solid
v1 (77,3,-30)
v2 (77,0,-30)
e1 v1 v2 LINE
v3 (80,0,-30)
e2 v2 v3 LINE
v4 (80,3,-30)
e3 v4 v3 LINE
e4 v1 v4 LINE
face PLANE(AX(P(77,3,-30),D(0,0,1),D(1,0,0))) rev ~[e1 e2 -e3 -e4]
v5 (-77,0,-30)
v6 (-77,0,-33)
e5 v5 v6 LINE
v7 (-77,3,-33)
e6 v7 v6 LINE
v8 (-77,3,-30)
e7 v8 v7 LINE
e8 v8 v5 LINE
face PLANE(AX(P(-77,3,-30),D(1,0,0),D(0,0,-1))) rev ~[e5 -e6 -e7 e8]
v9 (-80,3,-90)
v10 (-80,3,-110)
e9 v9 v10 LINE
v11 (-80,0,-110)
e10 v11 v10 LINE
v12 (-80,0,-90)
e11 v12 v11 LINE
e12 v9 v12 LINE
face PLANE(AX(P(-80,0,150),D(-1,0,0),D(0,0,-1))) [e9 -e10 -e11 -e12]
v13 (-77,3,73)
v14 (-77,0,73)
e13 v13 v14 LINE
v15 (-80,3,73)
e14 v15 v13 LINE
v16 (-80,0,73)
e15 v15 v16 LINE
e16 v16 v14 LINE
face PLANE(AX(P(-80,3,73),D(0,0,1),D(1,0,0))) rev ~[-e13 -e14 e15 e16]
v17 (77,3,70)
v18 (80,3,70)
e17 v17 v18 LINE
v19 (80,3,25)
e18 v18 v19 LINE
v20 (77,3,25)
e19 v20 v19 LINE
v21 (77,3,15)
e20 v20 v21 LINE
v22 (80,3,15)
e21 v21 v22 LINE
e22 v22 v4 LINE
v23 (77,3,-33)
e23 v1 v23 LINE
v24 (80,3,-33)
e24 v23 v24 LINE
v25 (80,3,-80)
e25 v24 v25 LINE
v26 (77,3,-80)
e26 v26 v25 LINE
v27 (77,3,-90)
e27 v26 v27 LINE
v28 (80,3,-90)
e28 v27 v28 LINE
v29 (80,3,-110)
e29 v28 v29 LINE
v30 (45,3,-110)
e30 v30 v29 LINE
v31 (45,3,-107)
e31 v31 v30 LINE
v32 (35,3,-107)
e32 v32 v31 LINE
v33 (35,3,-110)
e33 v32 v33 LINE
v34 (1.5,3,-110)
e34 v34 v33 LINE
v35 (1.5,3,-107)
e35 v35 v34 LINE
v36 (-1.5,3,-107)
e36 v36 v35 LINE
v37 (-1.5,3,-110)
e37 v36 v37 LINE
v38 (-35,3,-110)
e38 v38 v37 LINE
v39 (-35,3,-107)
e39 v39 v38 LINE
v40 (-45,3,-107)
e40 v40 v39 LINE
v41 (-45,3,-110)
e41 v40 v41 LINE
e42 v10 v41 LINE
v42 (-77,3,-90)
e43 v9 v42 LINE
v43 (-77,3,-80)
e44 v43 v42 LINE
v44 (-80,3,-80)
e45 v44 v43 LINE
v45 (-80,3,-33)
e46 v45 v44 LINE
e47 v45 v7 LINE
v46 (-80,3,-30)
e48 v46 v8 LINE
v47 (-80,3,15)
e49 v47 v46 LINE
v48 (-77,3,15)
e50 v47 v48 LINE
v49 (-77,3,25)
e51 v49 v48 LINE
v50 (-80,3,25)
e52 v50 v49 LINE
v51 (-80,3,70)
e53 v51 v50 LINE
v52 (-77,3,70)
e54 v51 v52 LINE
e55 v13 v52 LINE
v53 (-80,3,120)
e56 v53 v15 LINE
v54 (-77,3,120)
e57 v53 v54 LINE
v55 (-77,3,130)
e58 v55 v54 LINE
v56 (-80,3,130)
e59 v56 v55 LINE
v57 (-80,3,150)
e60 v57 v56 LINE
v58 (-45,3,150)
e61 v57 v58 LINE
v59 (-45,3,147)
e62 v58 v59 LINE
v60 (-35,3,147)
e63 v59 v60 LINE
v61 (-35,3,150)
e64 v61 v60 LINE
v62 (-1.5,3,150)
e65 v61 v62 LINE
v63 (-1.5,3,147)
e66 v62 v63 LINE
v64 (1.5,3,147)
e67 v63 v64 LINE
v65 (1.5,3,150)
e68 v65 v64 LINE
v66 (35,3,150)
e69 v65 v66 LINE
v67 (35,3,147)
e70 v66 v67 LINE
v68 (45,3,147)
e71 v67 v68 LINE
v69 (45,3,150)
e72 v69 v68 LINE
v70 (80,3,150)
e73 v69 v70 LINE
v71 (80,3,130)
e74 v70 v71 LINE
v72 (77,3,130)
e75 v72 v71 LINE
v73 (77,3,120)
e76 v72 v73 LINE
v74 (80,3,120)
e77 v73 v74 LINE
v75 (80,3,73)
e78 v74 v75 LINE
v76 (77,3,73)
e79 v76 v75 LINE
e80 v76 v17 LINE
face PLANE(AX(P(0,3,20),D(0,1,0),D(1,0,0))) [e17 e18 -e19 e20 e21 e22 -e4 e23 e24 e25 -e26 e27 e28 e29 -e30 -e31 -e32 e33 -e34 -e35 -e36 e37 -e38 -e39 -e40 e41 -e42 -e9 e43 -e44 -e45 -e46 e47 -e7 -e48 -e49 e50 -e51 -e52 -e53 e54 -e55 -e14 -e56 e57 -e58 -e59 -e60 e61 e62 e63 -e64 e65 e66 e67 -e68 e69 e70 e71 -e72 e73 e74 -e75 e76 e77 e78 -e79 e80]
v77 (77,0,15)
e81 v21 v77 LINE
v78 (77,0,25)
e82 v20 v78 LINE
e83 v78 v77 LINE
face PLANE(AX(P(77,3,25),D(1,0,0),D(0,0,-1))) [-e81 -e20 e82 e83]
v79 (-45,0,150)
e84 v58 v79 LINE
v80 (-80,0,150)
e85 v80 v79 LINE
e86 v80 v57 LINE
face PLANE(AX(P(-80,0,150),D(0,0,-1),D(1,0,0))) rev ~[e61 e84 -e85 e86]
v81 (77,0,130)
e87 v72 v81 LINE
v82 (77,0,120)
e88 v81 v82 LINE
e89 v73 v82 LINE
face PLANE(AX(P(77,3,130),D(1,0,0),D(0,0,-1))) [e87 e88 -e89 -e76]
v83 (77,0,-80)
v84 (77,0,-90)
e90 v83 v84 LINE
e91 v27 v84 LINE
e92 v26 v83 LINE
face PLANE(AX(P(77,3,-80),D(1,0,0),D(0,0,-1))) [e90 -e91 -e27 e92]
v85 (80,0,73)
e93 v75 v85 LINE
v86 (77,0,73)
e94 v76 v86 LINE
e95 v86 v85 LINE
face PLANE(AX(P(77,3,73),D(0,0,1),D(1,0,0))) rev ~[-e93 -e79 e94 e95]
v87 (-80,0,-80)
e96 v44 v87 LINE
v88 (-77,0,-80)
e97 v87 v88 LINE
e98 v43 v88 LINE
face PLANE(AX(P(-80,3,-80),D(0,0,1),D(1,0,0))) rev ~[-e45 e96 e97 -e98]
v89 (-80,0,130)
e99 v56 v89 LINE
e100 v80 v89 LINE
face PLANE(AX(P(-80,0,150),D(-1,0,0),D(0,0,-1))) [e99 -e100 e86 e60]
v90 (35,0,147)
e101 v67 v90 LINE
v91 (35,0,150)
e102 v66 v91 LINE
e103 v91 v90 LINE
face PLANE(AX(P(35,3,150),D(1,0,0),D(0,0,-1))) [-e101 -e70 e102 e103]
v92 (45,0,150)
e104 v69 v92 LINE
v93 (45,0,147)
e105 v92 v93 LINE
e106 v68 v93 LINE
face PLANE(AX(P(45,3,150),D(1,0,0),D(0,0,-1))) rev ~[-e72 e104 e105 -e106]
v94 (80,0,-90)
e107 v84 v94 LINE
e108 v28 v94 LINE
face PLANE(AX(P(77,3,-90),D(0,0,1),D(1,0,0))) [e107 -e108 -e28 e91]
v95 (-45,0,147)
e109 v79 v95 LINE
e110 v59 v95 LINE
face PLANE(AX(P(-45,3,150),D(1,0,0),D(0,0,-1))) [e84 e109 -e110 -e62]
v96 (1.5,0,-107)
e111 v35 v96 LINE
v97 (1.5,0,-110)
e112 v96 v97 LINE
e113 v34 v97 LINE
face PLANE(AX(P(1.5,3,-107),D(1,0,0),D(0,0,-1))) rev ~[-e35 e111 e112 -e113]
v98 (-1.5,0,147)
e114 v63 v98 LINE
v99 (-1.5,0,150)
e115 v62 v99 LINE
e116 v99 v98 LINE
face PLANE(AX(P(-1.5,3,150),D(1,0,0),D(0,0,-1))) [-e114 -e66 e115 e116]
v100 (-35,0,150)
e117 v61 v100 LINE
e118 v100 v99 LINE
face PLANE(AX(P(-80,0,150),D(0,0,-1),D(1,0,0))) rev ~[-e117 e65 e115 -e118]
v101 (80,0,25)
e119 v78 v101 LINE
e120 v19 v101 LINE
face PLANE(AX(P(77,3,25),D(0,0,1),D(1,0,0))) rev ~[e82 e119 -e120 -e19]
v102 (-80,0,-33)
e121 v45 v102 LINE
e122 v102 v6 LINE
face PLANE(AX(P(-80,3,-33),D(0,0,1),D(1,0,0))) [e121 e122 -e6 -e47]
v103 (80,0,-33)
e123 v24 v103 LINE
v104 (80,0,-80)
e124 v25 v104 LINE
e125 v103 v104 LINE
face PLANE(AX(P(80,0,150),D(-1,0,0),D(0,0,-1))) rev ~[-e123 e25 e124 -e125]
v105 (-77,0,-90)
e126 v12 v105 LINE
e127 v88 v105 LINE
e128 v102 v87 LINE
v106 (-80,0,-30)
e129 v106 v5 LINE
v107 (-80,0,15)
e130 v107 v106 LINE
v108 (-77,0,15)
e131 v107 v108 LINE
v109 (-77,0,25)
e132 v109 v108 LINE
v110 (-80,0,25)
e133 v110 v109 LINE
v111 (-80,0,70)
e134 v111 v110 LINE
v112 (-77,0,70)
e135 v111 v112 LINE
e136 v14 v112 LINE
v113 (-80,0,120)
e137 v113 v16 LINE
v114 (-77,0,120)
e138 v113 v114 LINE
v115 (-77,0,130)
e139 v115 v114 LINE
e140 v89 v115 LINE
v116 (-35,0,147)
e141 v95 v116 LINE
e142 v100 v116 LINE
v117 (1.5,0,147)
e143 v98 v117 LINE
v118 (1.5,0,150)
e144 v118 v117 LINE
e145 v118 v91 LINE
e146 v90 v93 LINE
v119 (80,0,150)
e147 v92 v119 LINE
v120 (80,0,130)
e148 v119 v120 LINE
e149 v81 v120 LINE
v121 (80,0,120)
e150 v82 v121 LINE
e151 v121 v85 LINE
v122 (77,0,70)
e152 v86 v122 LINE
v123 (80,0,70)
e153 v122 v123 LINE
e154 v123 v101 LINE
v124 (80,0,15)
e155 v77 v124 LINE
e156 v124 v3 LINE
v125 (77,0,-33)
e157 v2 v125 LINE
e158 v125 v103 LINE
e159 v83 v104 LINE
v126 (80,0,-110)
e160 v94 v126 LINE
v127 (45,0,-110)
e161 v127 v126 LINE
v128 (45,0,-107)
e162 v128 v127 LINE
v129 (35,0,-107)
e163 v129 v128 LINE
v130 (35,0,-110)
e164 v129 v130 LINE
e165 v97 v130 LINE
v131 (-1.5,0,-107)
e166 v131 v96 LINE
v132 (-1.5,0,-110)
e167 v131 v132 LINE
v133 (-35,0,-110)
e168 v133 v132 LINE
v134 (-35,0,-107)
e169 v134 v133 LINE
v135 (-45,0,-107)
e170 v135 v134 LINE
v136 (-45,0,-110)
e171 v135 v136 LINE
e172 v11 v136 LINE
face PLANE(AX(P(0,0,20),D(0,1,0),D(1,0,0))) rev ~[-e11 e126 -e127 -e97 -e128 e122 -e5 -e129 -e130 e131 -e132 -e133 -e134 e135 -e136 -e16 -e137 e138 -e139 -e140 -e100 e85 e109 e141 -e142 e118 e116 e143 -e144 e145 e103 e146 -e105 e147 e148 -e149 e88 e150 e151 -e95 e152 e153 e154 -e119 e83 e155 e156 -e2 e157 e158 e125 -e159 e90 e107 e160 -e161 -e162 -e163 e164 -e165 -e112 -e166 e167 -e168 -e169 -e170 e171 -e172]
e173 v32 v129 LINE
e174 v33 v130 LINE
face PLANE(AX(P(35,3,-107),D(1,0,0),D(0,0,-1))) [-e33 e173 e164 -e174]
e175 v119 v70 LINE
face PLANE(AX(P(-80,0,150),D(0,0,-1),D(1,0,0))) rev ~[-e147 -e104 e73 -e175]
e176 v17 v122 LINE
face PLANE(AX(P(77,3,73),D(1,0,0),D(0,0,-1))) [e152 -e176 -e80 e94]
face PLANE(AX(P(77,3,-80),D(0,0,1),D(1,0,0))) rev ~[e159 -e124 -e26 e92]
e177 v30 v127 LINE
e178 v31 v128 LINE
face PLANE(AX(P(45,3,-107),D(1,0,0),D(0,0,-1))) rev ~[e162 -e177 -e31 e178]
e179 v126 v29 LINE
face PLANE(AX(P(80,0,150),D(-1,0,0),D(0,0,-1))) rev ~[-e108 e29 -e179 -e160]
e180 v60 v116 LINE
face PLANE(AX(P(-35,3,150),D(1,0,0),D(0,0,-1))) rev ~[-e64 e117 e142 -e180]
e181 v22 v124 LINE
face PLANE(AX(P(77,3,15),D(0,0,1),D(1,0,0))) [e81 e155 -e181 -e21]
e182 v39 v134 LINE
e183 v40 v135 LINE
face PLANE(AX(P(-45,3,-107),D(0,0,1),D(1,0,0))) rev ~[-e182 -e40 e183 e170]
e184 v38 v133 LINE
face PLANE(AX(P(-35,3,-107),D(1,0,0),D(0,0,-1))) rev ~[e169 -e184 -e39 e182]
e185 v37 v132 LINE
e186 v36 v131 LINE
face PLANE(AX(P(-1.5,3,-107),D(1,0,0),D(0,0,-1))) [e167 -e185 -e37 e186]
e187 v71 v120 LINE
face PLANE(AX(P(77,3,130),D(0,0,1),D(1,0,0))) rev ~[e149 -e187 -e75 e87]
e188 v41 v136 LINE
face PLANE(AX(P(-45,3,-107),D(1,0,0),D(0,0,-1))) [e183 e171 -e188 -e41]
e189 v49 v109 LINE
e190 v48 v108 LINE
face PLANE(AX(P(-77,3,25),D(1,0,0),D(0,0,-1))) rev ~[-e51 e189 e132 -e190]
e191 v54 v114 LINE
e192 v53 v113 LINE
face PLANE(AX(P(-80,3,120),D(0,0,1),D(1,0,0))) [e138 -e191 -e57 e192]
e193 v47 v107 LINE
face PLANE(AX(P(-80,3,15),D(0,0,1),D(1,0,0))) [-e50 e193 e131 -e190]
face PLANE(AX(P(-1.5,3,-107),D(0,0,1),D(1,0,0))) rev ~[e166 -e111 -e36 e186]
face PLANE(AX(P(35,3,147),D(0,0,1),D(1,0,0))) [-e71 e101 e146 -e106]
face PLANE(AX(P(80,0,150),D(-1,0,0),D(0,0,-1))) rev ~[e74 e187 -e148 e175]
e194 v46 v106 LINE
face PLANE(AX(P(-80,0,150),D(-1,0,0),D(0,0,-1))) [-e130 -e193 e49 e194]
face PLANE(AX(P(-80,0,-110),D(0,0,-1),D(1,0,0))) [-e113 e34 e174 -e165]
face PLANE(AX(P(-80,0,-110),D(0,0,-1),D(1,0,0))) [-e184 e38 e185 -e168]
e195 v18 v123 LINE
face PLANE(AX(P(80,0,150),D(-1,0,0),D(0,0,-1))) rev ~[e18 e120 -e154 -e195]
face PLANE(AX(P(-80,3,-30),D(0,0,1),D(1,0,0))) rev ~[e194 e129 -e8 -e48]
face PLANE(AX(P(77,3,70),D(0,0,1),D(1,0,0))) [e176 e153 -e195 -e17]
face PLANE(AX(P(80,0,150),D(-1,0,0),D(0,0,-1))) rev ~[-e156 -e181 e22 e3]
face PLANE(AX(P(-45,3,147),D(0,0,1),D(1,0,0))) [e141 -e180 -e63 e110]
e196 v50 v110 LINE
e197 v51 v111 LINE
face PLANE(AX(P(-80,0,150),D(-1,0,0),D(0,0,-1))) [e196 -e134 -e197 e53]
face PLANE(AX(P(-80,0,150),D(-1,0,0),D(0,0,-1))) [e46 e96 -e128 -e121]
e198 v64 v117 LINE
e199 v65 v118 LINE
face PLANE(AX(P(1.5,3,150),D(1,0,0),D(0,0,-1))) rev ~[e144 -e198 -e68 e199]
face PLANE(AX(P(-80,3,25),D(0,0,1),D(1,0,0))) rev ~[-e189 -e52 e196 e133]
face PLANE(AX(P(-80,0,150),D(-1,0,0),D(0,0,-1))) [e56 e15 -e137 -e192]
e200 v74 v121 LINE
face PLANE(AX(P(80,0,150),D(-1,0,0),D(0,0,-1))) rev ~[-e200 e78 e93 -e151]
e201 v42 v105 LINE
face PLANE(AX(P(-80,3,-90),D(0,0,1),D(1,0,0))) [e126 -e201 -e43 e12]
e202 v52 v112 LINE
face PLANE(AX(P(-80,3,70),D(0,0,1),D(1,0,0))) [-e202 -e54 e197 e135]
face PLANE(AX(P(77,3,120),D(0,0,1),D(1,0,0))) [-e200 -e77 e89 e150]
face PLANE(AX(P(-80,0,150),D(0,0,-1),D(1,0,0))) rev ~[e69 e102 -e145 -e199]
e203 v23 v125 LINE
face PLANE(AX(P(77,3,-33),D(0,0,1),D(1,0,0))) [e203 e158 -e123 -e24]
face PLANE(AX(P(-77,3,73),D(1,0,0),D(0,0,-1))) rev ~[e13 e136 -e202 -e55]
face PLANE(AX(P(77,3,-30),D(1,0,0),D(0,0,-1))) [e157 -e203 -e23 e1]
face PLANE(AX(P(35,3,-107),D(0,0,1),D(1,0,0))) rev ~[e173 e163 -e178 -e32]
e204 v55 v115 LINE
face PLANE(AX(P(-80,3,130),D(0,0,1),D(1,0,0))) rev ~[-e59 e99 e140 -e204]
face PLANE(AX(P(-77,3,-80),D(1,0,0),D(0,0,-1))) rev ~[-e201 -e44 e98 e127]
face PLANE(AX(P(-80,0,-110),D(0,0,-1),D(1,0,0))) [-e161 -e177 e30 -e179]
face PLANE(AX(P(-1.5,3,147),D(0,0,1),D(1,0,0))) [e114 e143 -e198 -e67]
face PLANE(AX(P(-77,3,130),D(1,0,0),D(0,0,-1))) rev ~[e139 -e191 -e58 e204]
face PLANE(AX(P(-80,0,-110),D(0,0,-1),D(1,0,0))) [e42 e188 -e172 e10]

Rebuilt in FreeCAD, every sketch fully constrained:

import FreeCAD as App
import Part
import Sketcher


def add_polygon(sketch, points):
    """Adds a closed chain of lines whose ends are joined by coincident constraints."""
    first, n = sketch.GeometryCount, len(points)
    for a, b in zip(points, points[1:] + points[:1]):
        sketch.addGeometry(Part.LineSegment(App.Vector(*a, 0), App.Vector(*b, 0)), False)
    for i in range(n):
        sketch.addConstraint(Sketcher.Constraint("Coincident", first + i, 2, first + (i + 1) % n, 1))

doc = App.newDocument("Part")
body = doc.addObject("PartDesign::Body", "Body")

# Sketch on XZ plane
sketch1 = body.newObject("Sketcher::SketchObject", "Sketch")
sketch1.AttachmentSupport = (doc.getObject("XZ_Plane"), [""])
sketch1.MapMode = "FlatFace"
add_polygon(sketch1, [(-80, -110), (-80, 150), (80, 150), (80, -110)])  # lines 0-3
sketch1.addConstraint(Sketcher.Constraint("Vertical", 0))
sketch1.addConstraint(Sketcher.Constraint("Horizontal", 1))
sketch1.addConstraint(Sketcher.Constraint("Vertical", 2))
sketch1.addConstraint(Sketcher.Constraint("Horizontal", 3))
sketch1.addConstraint(Sketcher.Constraint("DistanceX", 1, 1, 1, 2, 160.0))
sketch1.addConstraint(Sketcher.Constraint("DistanceY", 0, 1, 0, 2, 260.0))
sketch1.addConstraint(Sketcher.Constraint("DistanceX", 0, 2, -1, 1, 80.0))
sketch1.addConstraint(Sketcher.Constraint("DistanceY", -1, 1, 0, 2, 150.0))
pad1 = body.newObject("PartDesign::Pad", "Pad")
pad1.Profile = sketch1
pad1.Length = 3
pad1.Reversed = True

# Sketch on XZ plane
sketch2 = body.newObject("Sketcher::SketchObject", "Sketch001")
sketch2.AttachmentSupport = (doc.getObject("XZ_Plane"), [""])
sketch2.MapMode = "FlatFace"
sketch2.AttachmentOffset = App.Placement(App.Vector(0, 0, -3), App.Rotation())
add_polygon(sketch2, [(-1.5, -110), (-1.5, -107), (1.5, -107), (1.5, -110)])  # lines 0-3
add_polygon(sketch2, [(35, -110), (35, -107), (45, -107), (45, -110)])  # lines 4-7
add_polygon(sketch2, [(-45, -110), (-45, -107), (-35, -107), (-35, -110)])  # lines 8-11
add_polygon(sketch2, [(35, 147), (35, 150), (45, 150), (45, 147)])  # lines 12-15
add_polygon(sketch2, [(-45, 147), (-45, 150), (-35, 150), (-35, 147)])  # lines 16-19
add_polygon(sketch2, [(-1.5, 147), (-1.5, 150), (1.5, 150), (1.5, 147)])  # lines 20-23
add_polygon(sketch2, [(-80, 120), (-80, 130), (-77, 130), (-77, 120)])  # lines 24-27
add_polygon(sketch2, [(-80, 15), (-80, 25), (-77, 25), (-77, 15)])  # lines 28-31
add_polygon(sketch2, [(-80, -90), (-80, -80), (-77, -80), (-77, -90)])  # lines 32-35
add_polygon(sketch2, [(-80, 70), (-80, 73), (-77, 73), (-77, 70)])  # lines 36-39
add_polygon(sketch2, [(-80, -33), (-80, -30), (-77, -30), (-77, -33)])  # lines 40-43
add_polygon(sketch2, [(77, 120), (77, 130), (80, 130), (80, 120)])  # lines 44-47
add_polygon(sketch2, [(77, 70), (77, 73), (80, 73), (80, 70)])  # lines 48-51
add_polygon(sketch2, [(77, 15), (77, 25), (80, 25), (80, 15)])  # lines 52-55
add_polygon(sketch2, [(77, -33), (77, -30), (80, -30), (80, -33)])  # lines 56-59
add_polygon(sketch2, [(77, -90), (77, -80), (80, -80), (80, -90)])  # lines 60-63
sketch2.addConstraint(Sketcher.Constraint("Vertical", 0))
sketch2.addConstraint(Sketcher.Constraint("Horizontal", 1))
sketch2.addConstraint(Sketcher.Constraint("Vertical", 2))
sketch2.addConstraint(Sketcher.Constraint("Horizontal", 3))
sketch2.addConstraint(Sketcher.Constraint("Vertical", 4))
sketch2.addConstraint(Sketcher.Constraint("Horizontal", 5))
sketch2.addConstraint(Sketcher.Constraint("Vertical", 6))
sketch2.addConstraint(Sketcher.Constraint("Horizontal", 7))
sketch2.addConstraint(Sketcher.Constraint("Vertical", 8))
sketch2.addConstraint(Sketcher.Constraint("Horizontal", 9))
sketch2.addConstraint(Sketcher.Constraint("Vertical", 10))
sketch2.addConstraint(Sketcher.Constraint("Horizontal", 11))
sketch2.addConstraint(Sketcher.Constraint("Vertical", 12))
sketch2.addConstraint(Sketcher.Constraint("Horizontal", 13))
sketch2.addConstraint(Sketcher.Constraint("Vertical", 14))
sketch2.addConstraint(Sketcher.Constraint("Horizontal", 15))
sketch2.addConstraint(Sketcher.Constraint("Vertical", 16))
sketch2.addConstraint(Sketcher.Constraint("Horizontal", 17))
sketch2.addConstraint(Sketcher.Constraint("Vertical", 18))
sketch2.addConstraint(Sketcher.Constraint("Horizontal", 19))
sketch2.addConstraint(Sketcher.Constraint("Vertical", 20))
sketch2.addConstraint(Sketcher.Constraint("Horizontal", 21))
sketch2.addConstraint(Sketcher.Constraint("Vertical", 22))
sketch2.addConstraint(Sketcher.Constraint("Horizontal", 23))
sketch2.addConstraint(Sketcher.Constraint("Vertical", 24))
sketch2.addConstraint(Sketcher.Constraint("Horizontal", 25))
sketch2.addConstraint(Sketcher.Constraint("Vertical", 26))
sketch2.addConstraint(Sketcher.Constraint("Horizontal", 27))
sketch2.addConstraint(Sketcher.Constraint("Vertical", 28))
sketch2.addConstraint(Sketcher.Constraint("Horizontal", 29))
sketch2.addConstraint(Sketcher.Constraint("Vertical", 30))
sketch2.addConstraint(Sketcher.Constraint("Horizontal", 31))
sketch2.addConstraint(Sketcher.Constraint("Vertical", 32))
sketch2.addConstraint(Sketcher.Constraint("Horizontal", 33))
sketch2.addConstraint(Sketcher.Constraint("Vertical", 34))
sketch2.addConstraint(Sketcher.Constraint("Horizontal", 35))
sketch2.addConstraint(Sketcher.Constraint("Vertical", 36))
sketch2.addConstraint(Sketcher.Constraint("Horizontal", 37))
sketch2.addConstraint(Sketcher.Constraint("Vertical", 38))
sketch2.addConstraint(Sketcher.Constraint("Horizontal", 39))
sketch2.addConstraint(Sketcher.Constraint("Vertical", 40))
sketch2.addConstraint(Sketcher.Constraint("Horizontal", 41))
sketch2.addConstraint(Sketcher.Constraint("Vertical", 42))
sketch2.addConstraint(Sketcher.Constraint("Horizontal", 43))
sketch2.addConstraint(Sketcher.Constraint("Vertical", 44))
sketch2.addConstraint(Sketcher.Constraint("Horizontal", 45))
sketch2.addConstraint(Sketcher.Constraint("Vertical", 46))
sketch2.addConstraint(Sketcher.Constraint("Horizontal", 47))
sketch2.addConstraint(Sketcher.Constraint("Vertical", 48))
sketch2.addConstraint(Sketcher.Constraint("Horizontal", 49))
sketch2.addConstraint(Sketcher.Constraint("Vertical", 50))
sketch2.addConstraint(Sketcher.Constraint("Horizontal", 51))
sketch2.addConstraint(Sketcher.Constraint("Vertical", 52))
sketch2.addConstraint(Sketcher.Constraint("Horizontal", 53))
sketch2.addConstraint(Sketcher.Constraint("Vertical", 54))
sketch2.addConstraint(Sketcher.Constraint("Horizontal", 55))
sketch2.addConstraint(Sketcher.Constraint("Vertical", 56))
sketch2.addConstraint(Sketcher.Constraint("Horizontal", 57))
sketch2.addConstraint(Sketcher.Constraint("Vertical", 58))
sketch2.addConstraint(Sketcher.Constraint("Horizontal", 59))
sketch2.addConstraint(Sketcher.Constraint("Vertical", 60))
sketch2.addConstraint(Sketcher.Constraint("Horizontal", 61))
sketch2.addConstraint(Sketcher.Constraint("Vertical", 62))
sketch2.addConstraint(Sketcher.Constraint("Horizontal", 63))
sketch2.addConstraint(Sketcher.Constraint("Symmetric", 5, 2, 8, 2, -2))
sketch2.addConstraint(Sketcher.Constraint("Symmetric", 7, 2, 10, 2, -2))
sketch2.addConstraint(Sketcher.Constraint("Symmetric", 13, 2, 16, 2, -2))
sketch2.addConstraint(Sketcher.Constraint("Symmetric", 15, 2, 18, 2, -2))
sketch2.addConstraint(Sketcher.Constraint("Symmetric", 25, 2, 44, 2, -2))
sketch2.addConstraint(Sketcher.Constraint("Symmetric", 27, 2, 46, 2, -2))
sketch2.addConstraint(Sketcher.Constraint("Symmetric", 37, 2, 48, 2, -2))
sketch2.addConstraint(Sketcher.Constraint("Symmetric", 39, 2, 50, 2, -2))
sketch2.addConstraint(Sketcher.Constraint("Symmetric", 29, 2, 52, 2, -2))
sketch2.addConstraint(Sketcher.Constraint("Symmetric", 31, 2, 54, 2, -2))
sketch2.addConstraint(Sketcher.Constraint("Symmetric", 41, 2, 56, 2, -2))
sketch2.addConstraint(Sketcher.Constraint("Symmetric", 43, 2, 58, 2, -2))
sketch2.addConstraint(Sketcher.Constraint("Symmetric", 33, 2, 60, 2, -2))
sketch2.addConstraint(Sketcher.Constraint("Symmetric", 35, 2, 62, 2, -2))
sketch2.addConstraint(Sketcher.Constraint("Horizontal", 1, 2, 4, 2))
sketch2.addConstraint(Sketcher.Constraint("Horizontal", 3, 2, 6, 2))
sketch2.addConstraint(Sketcher.Constraint("Horizontal", 17, 2, 20, 2))
sketch2.addConstraint(Sketcher.Constraint("Horizontal", 19, 2, 22, 2))
sketch2.addConstraint(Sketcher.Constraint("Vertical", 7, 2, 12, 2))
sketch2.addConstraint(Sketcher.Constraint("Vertical", 6, 2, 13, 2))
sketch2.addConstraint(Sketcher.Constraint("Vertical", 3, 2, 20, 2))
sketch2.addConstraint(Sketcher.Constraint("Vertical", 2, 2, 21, 2))
sketch2.addConstraint(Sketcher.Constraint("Vertical", 27, 2, 28, 2))
sketch2.addConstraint(Sketcher.Constraint("Vertical", 26, 2, 29, 2))
sketch2.addConstraint(Sketcher.Constraint("Vertical", 31, 2, 32, 2))
sketch2.addConstraint(Sketcher.Constraint("Vertical", 30, 2, 33, 2))
sketch2.addConstraint(Sketcher.Constraint("Vertical", 35, 2, 36, 2))
sketch2.addConstraint(Sketcher.Constraint("Vertical", 34, 2, 37, 2))
sketch2.addConstraint(Sketcher.Constraint("Vertical", 39, 2, 40, 2))
sketch2.addConstraint(Sketcher.Constraint("Vertical", 38, 2, 41, 2))
sketch2.addConstraint(Sketcher.Constraint("Equal", 23, 25))
sketch2.addConstraint(Sketcher.Constraint("Equal", 63, 0))
sketch2.addConstraint(Sketcher.Constraint("Equal", 10, 12))
sketch2.addConstraint(Sketcher.Constraint("Equal", 19, 24))
sketch2.addConstraint(Sketcher.Constraint("Equal", 26, 28))
sketch2.addConstraint(Sketcher.Constraint("Equal", 30, 32))
sketch2.addConstraint(Sketcher.Constraint("Equal", 22, 36))
sketch2.addConstraint(Sketcher.Constraint("Equal", 38, 40))
sketch2.addConstraint(Sketcher.Constraint("DistanceX", 1, 1, 1, 2, 3.0))
sketch2.addConstraint(Sketcher.Constraint("DistanceX", 5, 1, 5, 2, 10.0))
sketch2.addConstraint(Sketcher.Constraint("DistanceY", 0, 2, -1, 1, 107.0))
sketch2.addConstraint(Sketcher.Constraint("DistanceX", -1, 1, 4, 2, 35.0))
sketch2.addConstraint(Sketcher.Constraint("DistanceY", -1, 1, 12, 2, 150.0))
sketch2.addConstraint(Sketcher.Constraint("DistanceX", 24, 2, -1, 1, 80.0))
sketch2.addConstraint(Sketcher.Constraint("DistanceY", -1, 1, 24, 2, 130.0))
sketch2.addConstraint(Sketcher.Constraint("DistanceY", -1, 1, 28, 2, 25.0))
sketch2.addConstraint(Sketcher.Constraint("DistanceY", 32, 2, -1, 1, 80.0))
sketch2.addConstraint(Sketcher.Constraint("DistanceY", -1, 1, 36, 2, 73.0))
sketch2.addConstraint(Sketcher.Constraint("DistanceY", 40, 2, -1, 1, 30.0))
sketch2.addConstraint(Sketcher.Constraint("DistanceX", 0, 2, -1, 1, 1.5))
pocket1 = body.newObject("PartDesign::Pocket", "Pocket")
pocket1.Profile = sketch2
pocket1.Type = "ThroughAll"
pocket1.Reversed = True

doc.recompute()
